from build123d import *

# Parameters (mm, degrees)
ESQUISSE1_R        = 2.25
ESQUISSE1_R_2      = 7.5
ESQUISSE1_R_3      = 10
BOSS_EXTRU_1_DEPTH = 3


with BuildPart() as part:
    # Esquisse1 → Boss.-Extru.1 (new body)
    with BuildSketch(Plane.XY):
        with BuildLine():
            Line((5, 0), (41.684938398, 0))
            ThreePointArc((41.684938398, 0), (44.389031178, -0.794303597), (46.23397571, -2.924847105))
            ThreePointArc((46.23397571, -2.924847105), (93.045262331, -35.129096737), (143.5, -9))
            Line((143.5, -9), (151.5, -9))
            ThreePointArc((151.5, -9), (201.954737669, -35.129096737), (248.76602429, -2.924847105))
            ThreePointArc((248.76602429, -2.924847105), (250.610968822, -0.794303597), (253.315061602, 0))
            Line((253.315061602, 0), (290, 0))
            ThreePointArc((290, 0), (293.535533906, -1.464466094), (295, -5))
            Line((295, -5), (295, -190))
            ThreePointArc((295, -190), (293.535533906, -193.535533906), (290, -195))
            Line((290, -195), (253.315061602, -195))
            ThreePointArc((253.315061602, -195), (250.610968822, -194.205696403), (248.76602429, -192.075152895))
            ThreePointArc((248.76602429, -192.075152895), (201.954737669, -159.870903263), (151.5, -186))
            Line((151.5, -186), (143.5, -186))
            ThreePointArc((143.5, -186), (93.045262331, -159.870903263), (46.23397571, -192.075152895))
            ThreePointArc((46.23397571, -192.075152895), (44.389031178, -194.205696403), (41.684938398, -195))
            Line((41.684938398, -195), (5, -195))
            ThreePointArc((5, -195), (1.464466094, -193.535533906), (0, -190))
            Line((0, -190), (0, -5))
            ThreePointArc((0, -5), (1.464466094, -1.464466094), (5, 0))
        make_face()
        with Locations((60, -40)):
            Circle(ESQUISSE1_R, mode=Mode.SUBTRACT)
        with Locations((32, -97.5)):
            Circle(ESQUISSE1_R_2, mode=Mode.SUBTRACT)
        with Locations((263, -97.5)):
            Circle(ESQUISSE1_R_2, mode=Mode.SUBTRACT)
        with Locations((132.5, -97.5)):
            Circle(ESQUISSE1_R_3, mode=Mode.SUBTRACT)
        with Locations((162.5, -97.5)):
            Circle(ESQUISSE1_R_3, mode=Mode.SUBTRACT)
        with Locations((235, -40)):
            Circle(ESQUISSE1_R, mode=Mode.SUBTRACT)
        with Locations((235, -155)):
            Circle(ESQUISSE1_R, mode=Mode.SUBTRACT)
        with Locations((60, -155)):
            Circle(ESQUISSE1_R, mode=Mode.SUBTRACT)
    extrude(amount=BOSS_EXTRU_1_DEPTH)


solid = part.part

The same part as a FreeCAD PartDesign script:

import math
import FreeCAD as App
import Part
import Sketcher

V = App.Vector
Q = App.Units.Quantity

doc = App.newDocument("Part")
params = doc.addObject("Spreadsheet::Sheet", "Params")
for row, (alias, value) in enumerate([
    ("sketch1_diameter", "15 mm"),
    ("sketch1_diameter2", "20 mm"),
    ("sketch1_radius", "5 mm"),
    ("sketch1_diameter3", "4.5 mm"),
    ("sketch1_width", "8 mm"),
    ("pad1_length", "3 mm"),
], start=1):
    params.set(f"A{row}", alias)
    params.set(f"B{row}", "=" + value)
    params.setAlias(f"B{row}", alias)

body = doc.addObject("PartDesign::Body", "Body")

# Sketch on XY plane
sketch1 = body.newObject("Sketcher::SketchObject", "Sketch")
sketch1.AttachmentSupport = (doc.getObject("XY_Plane"), [""])
sketch1.MapMode = "FlatFace"
sketch1.addGeometry([
    Part.LineSegment(V(41.684938, 0, 0), V(5, 0, 0)),  # 0
    Part.ArcOfCircle(Part.Circle(V(5, -5, 0), V(0, 0, 1), 5), math.radians(90), math.radians(180)),  # 1
    Part.LineSegment(V(0, -5, 0), V(0, -190, 0)),  # 2
    Part.ArcOfCircle(Part.Circle(V(5, -190, 0), V(0, 0, 1), 5), math.radians(180), math.radians(270)),  # 3
    Part.LineSegment(V(5, -195, 0), V(41.684938, -195, 0)),  # 4
    Part.ArcOfCircle(Part.Circle(V(41.684938, -190, 0), V(0, 0, 1), 5), math.radians(-90), math.radians(-24.521242)),  # 5
    Part.ArcOfCircle(Part.Circle(V(96.488579, -215, 0), V(0, 0, 1), 55.236525), math.radians(31.669248), math.radians(155.478758)),  # 6
    Part.LineSegment(V(143.5, -186, 0), V(151.5, -186, 0)),  # 7
    Part.ArcOfCircle(Part.Circle(V(198.511421, -215, 0), V(0, 0, 1), 55.236525), math.radians(24.521242), math.radians(148.330752)),  # 8
    Part.ArcOfCircle(Part.Circle(V(253.315062, -190, 0), V(0, 0, 1), 5), math.radians(-155.478758), math.radians(-90)),  # 9
    Part.LineSegment(V(253.315062, -195, 0), V(290, -195, 0)),  # 10
    Part.ArcOfCircle(Part.Circle(V(290, -190, 0), V(0, 0, 1), 5), math.radians(-90), math.radians(0)),  # 11
    Part.LineSegment(V(295, -190, 0), V(295, -5, 0)),  # 12
    Part.ArcOfCircle(Part.Circle(V(290, -5, 0), V(0, 0, 1), 5), math.radians(0), math.radians(90)),  # 13
    Part.LineSegment(V(290, 0, 0), V(253.315062, 0, 0)),  # 14
    Part.ArcOfCircle(Part.Circle(V(253.315062, -5, 0), V(0, 0, 1), 5), math.radians(90), math.radians(155.478758)),  # 15
    Part.ArcOfCircle(Part.Circle(V(198.511421, 20, 0), V(0, 0, 1), 55.236525), math.radians(-148.330752), math.radians(-24.521242)),  # 16
    Part.LineSegment(V(151.5, -9, 0), V(143.5, -9, 0)),  # 17
    Part.ArcOfCircle(Part.Circle(V(96.488579, 20, 0), V(0, 0, 1), 55.236525), math.radians(-155.478758), math.radians(-31.669248)),  # 18
    Part.ArcOfCircle(Part.Circle(V(41.684938, -5, 0), V(0, 0, 1), 5), math.radians(24.521242), math.radians(90)),  # 19
    Part.Circle(V(235, -155, 0), V(0, 0, 1), 2.25),  # 20
    Part.Circle(V(263, -97.5, 0), V(0, 0, 1), 7.5),  # 21
    Part.Circle(V(162.5, -97.5, 0), V(0, 0, 1), 10),  # 22
    Part.Circle(V(60, -155, 0), V(0, 0, 1), 2.25),  # 23
    Part.Circle(V(132.5, -97.5, 0), V(0, 0, 1), 10),  # 24
    Part.Circle(V(32, -97.5, 0), V(0, 0, 1), 7.5),  # 25
    Part.Circle(V(235, -40, 0), V(0, 0, 1), 2.25),  # 26
    Part.Circle(V(60, -40, 0), V(0, 0, 1), 2.25),  # 27
], False)
sketch1.addConstraint([
    Sketcher.Constraint("Tangent", 0, 2, 1, 1),
    Sketcher.Constraint("Tangent", 1, 2, 2, 1),
    Sketcher.Constraint("Tangent", 2, 2, 3, 1),
    Sketcher.Constraint("Tangent", 3, 2, 4, 1),
    Sketcher.Constraint("Tangent", 4, 2, 5, 1),
    Sketcher.Constraint("Tangent", 5, 2, 6, 2),
    Sketcher.Constraint("Coincident", 6, 1, 7, 1),
    Sketcher.Constraint("Coincident", 7, 2, 8, 2),
    Sketcher.Constraint("Tangent", 8, 1, 9, 1),
    Sketcher.Constraint("Tangent", 9, 2, 10, 1),
    Sketcher.Constraint("Tangent", 10, 2, 11, 1),
    Sketcher.Constraint("Tangent", 11, 2, 12, 1),
    Sketcher.Constraint("Tangent", 12, 2, 13, 1),
    Sketcher.Constraint("Tangent", 13, 2, 14, 1),
    Sketcher.Constraint("Tangent", 14, 2, 15, 1),
    Sketcher.Constraint("Tangent", 15, 2, 16, 2),
    Sketcher.Constraint("Coincident", 16, 1, 17, 1),
    Sketcher.Constraint("Coincident", 17, 2, 18, 2),
    Sketcher.Constraint("Tangent", 18, 1, 19, 1),
    Sketcher.Constraint("Tangent", 19, 2, 0, 1),
    Sketcher.Constraint("Horizontal", 0),
    Sketcher.Constraint("Vertical", 2),
    Sketcher.Constraint("Horizontal", 4),
    Sketcher.Constraint("Horizontal", 7),
    Sketcher.Constraint("Horizontal", 10),
    Sketcher.Constraint("Vertical", 12),
    Sketcher.Constraint("Horizontal", 14),
    Sketcher.Constraint("Horizontal", 17),
    Sketcher.Constraint("Equal", 1, 3),
    Sketcher.Constraint("Equal", 3, 5),
    Sketcher.Constraint("Equal", 6, 8),
    Sketcher.Constraint("Equal", 5, 9),
    Sketcher.Constraint("Equal", 9, 11),
    Sketcher.Constraint("Equal", 11, 13),
    Sketcher.Constraint("Equal", 13, 15),
    Sketcher.Constraint("Equal", 8, 16),
    Sketcher.Constraint("Equal", 16, 18),
    Sketcher.Constraint("Equal", 15, 19),
    Sketcher.Constraint("Equal", 20, 23),
    Sketcher.Constraint("Equal", 22, 24),
    Sketcher.Constraint("Equal", 21, 25),
    Sketcher.Constraint("Equal", 23, 26),
    Sketcher.Constraint("Equal", 26, 27),
    Sketcher.Constraint("PointOnObject", 0, 2, -1),
    Sketcher.Constraint("PointOnObject", 1, 2, -2),
    Sketcher.Constraint("PointOnObject", 13, 2, -1),
    Sketcher.Constraint("Horizontal", 6, 3, 8, 3),
    Sketcher.Constraint("Horizontal", 5, 3, 9, 3),
    Sketcher.Constraint("Horizontal", 16, 3, 18, 3),
    Sketcher.Constraint("Horizontal", 21, 3, 22, 3),
    Sketcher.Constraint("Horizontal", 20, 3, 23, 3),
    Sketcher.Constraint("Horizontal", 22, 3, 24, 3),
    Sketcher.Constraint("Horizontal", 24, 3, 25, 3),
    Sketcher.Constraint("Horizontal", 26, 3, 27, 3),
    Sketcher.Constraint("Vertical", 9, 3, 15, 3),
    Sketcher.Constraint("Vertical", 8, 3, 16, 3),
    Sketcher.Constraint("Vertical", 6, 3, 18, 3),
    Sketcher.Constraint("Vertical", 20, 3, 26, 3),
    Sketcher.Constraint("Vertical", 23, 3, 27, 3),
    Sketcher.Constraint("Vertical", 7, 2, 16, 1),
    Sketcher.Constraint("Equal", 4, 10),
    Sketcher.Constraint("Diameter", 21, Q("15 mm")),
    Sketcher.Constraint("Diameter", 22, Q("20 mm")),
    Sketcher.Constraint("Radius", 1, Q("5 mm")),
    Sketcher.Constraint("Diameter", 20, Q("4.5 mm")),
    Sketcher.Constraint("DistanceX", 7, 1, 7, 2, Q("8 mm")),
    Sketcher.Constraint("DistanceY", 2, 2, 2, 1, Q("185 mm")),
    Sketcher.Constraint("DistanceY", 6, 3, -1, 1, Q("215 mm")),
    Sketcher.Constraint("DistanceX", -1, 1, 11, 3, Q("290 mm")),
    Sketcher.Constraint("DistanceX", -1, 1, 20, 3, Q("235 mm")),
    Sketcher.Constraint("DistanceY", 20, 3, -1, 1, Q("155 mm")),
    Sketcher.Constraint("DistanceX", -1, 1, 21, 3, Q("263 mm")),
    Sketcher.Constraint("DistanceX", -1, 1, 23, 3, Q("60 mm")),
    Sketcher.Constraint("DistanceX", -1, 1, 25, 3, Q("32 mm")),
    Sketcher.Constraint("DistanceY", 26, 3, -1, 1, Q("40 mm")),
    Sketcher.Constraint("DistanceY", 6, 1, -1, 1, Q("186 mm")),
    Sketcher.Constraint("DistanceX", 24, 3, 22, 3, Q("30 mm")),
    Sketcher.Constraint("DistanceX", 24, 3, 6, 1, Q("11 mm")),
    Sketcher.Constraint("DistanceY", 21, 3, -1, 1, Q("97.5 mm")),
    Sketcher.Constraint("Radius", 6, Q("55.236525 mm")),
])
sketch1.setExpression("Constraints[61]", "Params.sketch1_diameter")
sketch1.setExpression("Constraints[62]", "Params.sketch1_diameter2")
sketch1.setExpression("Constraints[63]", "Params.sketch1_radius")
sketch1.setExpression("Constraints[64]", "Params.sketch1_diameter3")
sketch1.setExpression("Constraints[65]", "Params.sketch1_width")
pad1 = body.newObject("PartDesign::Pad", "Pad")
pad1.Profile = sketch1
pad1.setExpression("Length", "Params.pad1_length")

doc.recompute()
